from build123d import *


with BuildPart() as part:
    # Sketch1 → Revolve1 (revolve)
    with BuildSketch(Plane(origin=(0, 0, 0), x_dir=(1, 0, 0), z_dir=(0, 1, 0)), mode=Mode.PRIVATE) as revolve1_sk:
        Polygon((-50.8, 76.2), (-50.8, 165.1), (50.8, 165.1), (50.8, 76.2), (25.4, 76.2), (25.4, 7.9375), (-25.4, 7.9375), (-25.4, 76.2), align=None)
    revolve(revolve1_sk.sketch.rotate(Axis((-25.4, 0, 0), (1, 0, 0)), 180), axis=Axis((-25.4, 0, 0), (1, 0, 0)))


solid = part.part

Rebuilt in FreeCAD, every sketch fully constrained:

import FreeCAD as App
import Part
import Sketcher
Q = App.Units.Quantity

doc = App.newDocument("Part")
body = doc.addObject("PartDesign::Body", "Body")

# Sketch on XZ plane
sketch1 = body.newObject("Sketcher::SketchObject", "Sketch")
sketch1.AttachmentSupport = (doc.getObject("XZ_Plane"), [""])
sketch1.MapMode = "FlatFace"
sketch1.addGeometry([
    Part.LineSegment(App.Vector(-51, -165, 0), App.Vector(-51, -76, 0)),  # 0
    Part.LineSegment(App.Vector(-51, -76, 0), App.Vector(-25, -76, 0)),  # 1
    Part.LineSegment(App.Vector(-25, -76, 0), App.Vector(-25, -8, 0)),  # 2
    Part.LineSegment(App.Vector(-25, -8, 0), App.Vector(25, -8, 0)),  # 3
    Part.LineSegment(App.Vector(25, -8, 0), App.Vector(25, -76, 0)),  # 4
    Part.LineSegment(App.Vector(25, -76, 0), App.Vector(51, -76, 0)),  # 5
    Part.LineSegment(App.Vector(51, -76, 0), App.Vector(51, -165, 0)),  # 6
    Part.LineSegment(App.Vector(51, -165, 0), App.Vector(-51, -165, 0)),  # 7
], False)
sketch1.addConstraint([
    Sketcher.Constraint("Coincident", 0, 2, 1, 1),
    Sketcher.Constraint("Coincident", 1, 2, 2, 1),
    Sketcher.Constraint("Coincident", 2, 2, 3, 1),
    Sketcher.Constraint("Coincident", 3, 2, 4, 1),
    Sketcher.Constraint("Coincident", 4, 2, 5, 1),
    Sketcher.Constraint("Coincident", 5, 2, 6, 1),
    Sketcher.Constraint("Coincident", 6, 2, 7, 1),
    Sketcher.Constraint("Coincident", 7, 2, 0, 1),
    Sketcher.Constraint("Vertical", 0),
    Sketcher.Constraint("Horizontal", 1),
    Sketcher.Constraint("Vertical", 2),
    Sketcher.Constraint("Horizontal", 3),
    Sketcher.Constraint("Vertical", 4),
    Sketcher.Constraint("Horizontal", 5),
    Sketcher.Constraint("Vertical", 6),
    Sketcher.Constraint("Horizontal", 7),
    Sketcher.Constraint("Symmetric", 1, 2, 4, 2, -2),
    Sketcher.Constraint("Equal", 1, 5),
    Sketcher.Constraint("DistanceX", 1, 1, 1, 2, Q("1 in")),
    Sketcher.Constraint("DistanceX", 3, 1, 3, 2, Q("2 in")),
    Sketcher.Constraint("DistanceY", 0, 1, 0, 2, Q("3.5 in")),
    Sketcher.Constraint("DistanceY", 0, 2, -1, 1, Q("3 in")),
    Sketcher.Constraint("DistanceY", 2, 1, 2, 2, Q("2.6875 in")),
])
revolution = body.newObject("PartDesign::Revolution", "Revolution")
revolution.Profile = sketch1
revolution.ReferenceAxis = (sketch1, ["H_Axis"])
revolution.Angle = 360

doc.recompute()
